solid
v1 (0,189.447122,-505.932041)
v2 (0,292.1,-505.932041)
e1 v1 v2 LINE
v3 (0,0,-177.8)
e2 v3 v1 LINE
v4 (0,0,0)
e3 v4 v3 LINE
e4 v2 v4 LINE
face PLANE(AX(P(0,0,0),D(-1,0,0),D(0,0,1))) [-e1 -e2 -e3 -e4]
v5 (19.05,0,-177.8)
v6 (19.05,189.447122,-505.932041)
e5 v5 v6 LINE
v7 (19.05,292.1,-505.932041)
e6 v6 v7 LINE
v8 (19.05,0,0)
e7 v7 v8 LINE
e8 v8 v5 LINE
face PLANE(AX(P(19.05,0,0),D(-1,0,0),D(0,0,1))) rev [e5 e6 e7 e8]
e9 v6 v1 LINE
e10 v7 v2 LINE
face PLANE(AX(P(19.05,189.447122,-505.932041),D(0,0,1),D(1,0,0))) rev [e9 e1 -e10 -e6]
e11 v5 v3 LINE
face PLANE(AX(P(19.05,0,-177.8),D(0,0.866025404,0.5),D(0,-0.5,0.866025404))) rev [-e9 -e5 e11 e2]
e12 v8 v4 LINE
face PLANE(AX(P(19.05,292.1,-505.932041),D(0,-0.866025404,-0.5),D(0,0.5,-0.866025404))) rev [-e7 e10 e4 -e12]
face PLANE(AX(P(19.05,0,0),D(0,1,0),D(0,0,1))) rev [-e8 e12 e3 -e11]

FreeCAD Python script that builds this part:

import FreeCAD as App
import Part
import Sketcher
Q = App.Units.Quantity

doc = App.newDocument("Part")
body = doc.addObject("PartDesign::Body", "Body")

# Sketch on YZ plane
sketch1 = doc.addObject("Sketcher::SketchObject", "Sketch")
body.addObject(sketch1)
sketch1.AttachmentSupport = (doc.YZ_Plane, [""])
sketch1.MapMode = "FlatFace"
sketch1.addGeometry([
    Part.LineSegment(App.Vector(0, 0, 0), App.Vector(0, -177.8, 0)),
    Part.LineSegment(App.Vector(0, -177.8, 0), App.Vector(189.447122, -505.932041, 0)),
    Part.LineSegment(App.Vector(189.447122, -505.932041, 0), App.Vector(292.1, -505.932041, 0)),
    Part.LineSegment(App.Vector(292.1, -505.932041, 0), App.Vector(0, 0, 0)),
], False)
sketch1.addConstraint([
    Sketcher.Constraint("Coincident", 0, 2, 1, 1),
    Sketcher.Constraint("Coincident", 1, 2, 2, 1),
    Sketcher.Constraint("Coincident", 2, 2, 3, 1),
    Sketcher.Constraint("Coincident", 3, 2, 0, 1),
    Sketcher.Constraint("Vertical", 0),
    Sketcher.Constraint("Horizontal", 2),
    Sketcher.Constraint("Coincident", 3, 2, -1, 1),
    Sketcher.Constraint("Parallel", 1, 3),
    Sketcher.Constraint("DistanceY", 0, 2, 0, 1, Q("7 in")),
    Sketcher.Constraint("Distance", 3, Q("23 in")),
    Sketcher.Constraint("Angle", 1, Q("-60 deg")),
])
pad1 = doc.addObject("PartDesign::Pad", "Pad")
body.addObject(pad1)
pad1.Profile = sketch1
pad1.Length = Q("0.75 in")

doc.recompute()
